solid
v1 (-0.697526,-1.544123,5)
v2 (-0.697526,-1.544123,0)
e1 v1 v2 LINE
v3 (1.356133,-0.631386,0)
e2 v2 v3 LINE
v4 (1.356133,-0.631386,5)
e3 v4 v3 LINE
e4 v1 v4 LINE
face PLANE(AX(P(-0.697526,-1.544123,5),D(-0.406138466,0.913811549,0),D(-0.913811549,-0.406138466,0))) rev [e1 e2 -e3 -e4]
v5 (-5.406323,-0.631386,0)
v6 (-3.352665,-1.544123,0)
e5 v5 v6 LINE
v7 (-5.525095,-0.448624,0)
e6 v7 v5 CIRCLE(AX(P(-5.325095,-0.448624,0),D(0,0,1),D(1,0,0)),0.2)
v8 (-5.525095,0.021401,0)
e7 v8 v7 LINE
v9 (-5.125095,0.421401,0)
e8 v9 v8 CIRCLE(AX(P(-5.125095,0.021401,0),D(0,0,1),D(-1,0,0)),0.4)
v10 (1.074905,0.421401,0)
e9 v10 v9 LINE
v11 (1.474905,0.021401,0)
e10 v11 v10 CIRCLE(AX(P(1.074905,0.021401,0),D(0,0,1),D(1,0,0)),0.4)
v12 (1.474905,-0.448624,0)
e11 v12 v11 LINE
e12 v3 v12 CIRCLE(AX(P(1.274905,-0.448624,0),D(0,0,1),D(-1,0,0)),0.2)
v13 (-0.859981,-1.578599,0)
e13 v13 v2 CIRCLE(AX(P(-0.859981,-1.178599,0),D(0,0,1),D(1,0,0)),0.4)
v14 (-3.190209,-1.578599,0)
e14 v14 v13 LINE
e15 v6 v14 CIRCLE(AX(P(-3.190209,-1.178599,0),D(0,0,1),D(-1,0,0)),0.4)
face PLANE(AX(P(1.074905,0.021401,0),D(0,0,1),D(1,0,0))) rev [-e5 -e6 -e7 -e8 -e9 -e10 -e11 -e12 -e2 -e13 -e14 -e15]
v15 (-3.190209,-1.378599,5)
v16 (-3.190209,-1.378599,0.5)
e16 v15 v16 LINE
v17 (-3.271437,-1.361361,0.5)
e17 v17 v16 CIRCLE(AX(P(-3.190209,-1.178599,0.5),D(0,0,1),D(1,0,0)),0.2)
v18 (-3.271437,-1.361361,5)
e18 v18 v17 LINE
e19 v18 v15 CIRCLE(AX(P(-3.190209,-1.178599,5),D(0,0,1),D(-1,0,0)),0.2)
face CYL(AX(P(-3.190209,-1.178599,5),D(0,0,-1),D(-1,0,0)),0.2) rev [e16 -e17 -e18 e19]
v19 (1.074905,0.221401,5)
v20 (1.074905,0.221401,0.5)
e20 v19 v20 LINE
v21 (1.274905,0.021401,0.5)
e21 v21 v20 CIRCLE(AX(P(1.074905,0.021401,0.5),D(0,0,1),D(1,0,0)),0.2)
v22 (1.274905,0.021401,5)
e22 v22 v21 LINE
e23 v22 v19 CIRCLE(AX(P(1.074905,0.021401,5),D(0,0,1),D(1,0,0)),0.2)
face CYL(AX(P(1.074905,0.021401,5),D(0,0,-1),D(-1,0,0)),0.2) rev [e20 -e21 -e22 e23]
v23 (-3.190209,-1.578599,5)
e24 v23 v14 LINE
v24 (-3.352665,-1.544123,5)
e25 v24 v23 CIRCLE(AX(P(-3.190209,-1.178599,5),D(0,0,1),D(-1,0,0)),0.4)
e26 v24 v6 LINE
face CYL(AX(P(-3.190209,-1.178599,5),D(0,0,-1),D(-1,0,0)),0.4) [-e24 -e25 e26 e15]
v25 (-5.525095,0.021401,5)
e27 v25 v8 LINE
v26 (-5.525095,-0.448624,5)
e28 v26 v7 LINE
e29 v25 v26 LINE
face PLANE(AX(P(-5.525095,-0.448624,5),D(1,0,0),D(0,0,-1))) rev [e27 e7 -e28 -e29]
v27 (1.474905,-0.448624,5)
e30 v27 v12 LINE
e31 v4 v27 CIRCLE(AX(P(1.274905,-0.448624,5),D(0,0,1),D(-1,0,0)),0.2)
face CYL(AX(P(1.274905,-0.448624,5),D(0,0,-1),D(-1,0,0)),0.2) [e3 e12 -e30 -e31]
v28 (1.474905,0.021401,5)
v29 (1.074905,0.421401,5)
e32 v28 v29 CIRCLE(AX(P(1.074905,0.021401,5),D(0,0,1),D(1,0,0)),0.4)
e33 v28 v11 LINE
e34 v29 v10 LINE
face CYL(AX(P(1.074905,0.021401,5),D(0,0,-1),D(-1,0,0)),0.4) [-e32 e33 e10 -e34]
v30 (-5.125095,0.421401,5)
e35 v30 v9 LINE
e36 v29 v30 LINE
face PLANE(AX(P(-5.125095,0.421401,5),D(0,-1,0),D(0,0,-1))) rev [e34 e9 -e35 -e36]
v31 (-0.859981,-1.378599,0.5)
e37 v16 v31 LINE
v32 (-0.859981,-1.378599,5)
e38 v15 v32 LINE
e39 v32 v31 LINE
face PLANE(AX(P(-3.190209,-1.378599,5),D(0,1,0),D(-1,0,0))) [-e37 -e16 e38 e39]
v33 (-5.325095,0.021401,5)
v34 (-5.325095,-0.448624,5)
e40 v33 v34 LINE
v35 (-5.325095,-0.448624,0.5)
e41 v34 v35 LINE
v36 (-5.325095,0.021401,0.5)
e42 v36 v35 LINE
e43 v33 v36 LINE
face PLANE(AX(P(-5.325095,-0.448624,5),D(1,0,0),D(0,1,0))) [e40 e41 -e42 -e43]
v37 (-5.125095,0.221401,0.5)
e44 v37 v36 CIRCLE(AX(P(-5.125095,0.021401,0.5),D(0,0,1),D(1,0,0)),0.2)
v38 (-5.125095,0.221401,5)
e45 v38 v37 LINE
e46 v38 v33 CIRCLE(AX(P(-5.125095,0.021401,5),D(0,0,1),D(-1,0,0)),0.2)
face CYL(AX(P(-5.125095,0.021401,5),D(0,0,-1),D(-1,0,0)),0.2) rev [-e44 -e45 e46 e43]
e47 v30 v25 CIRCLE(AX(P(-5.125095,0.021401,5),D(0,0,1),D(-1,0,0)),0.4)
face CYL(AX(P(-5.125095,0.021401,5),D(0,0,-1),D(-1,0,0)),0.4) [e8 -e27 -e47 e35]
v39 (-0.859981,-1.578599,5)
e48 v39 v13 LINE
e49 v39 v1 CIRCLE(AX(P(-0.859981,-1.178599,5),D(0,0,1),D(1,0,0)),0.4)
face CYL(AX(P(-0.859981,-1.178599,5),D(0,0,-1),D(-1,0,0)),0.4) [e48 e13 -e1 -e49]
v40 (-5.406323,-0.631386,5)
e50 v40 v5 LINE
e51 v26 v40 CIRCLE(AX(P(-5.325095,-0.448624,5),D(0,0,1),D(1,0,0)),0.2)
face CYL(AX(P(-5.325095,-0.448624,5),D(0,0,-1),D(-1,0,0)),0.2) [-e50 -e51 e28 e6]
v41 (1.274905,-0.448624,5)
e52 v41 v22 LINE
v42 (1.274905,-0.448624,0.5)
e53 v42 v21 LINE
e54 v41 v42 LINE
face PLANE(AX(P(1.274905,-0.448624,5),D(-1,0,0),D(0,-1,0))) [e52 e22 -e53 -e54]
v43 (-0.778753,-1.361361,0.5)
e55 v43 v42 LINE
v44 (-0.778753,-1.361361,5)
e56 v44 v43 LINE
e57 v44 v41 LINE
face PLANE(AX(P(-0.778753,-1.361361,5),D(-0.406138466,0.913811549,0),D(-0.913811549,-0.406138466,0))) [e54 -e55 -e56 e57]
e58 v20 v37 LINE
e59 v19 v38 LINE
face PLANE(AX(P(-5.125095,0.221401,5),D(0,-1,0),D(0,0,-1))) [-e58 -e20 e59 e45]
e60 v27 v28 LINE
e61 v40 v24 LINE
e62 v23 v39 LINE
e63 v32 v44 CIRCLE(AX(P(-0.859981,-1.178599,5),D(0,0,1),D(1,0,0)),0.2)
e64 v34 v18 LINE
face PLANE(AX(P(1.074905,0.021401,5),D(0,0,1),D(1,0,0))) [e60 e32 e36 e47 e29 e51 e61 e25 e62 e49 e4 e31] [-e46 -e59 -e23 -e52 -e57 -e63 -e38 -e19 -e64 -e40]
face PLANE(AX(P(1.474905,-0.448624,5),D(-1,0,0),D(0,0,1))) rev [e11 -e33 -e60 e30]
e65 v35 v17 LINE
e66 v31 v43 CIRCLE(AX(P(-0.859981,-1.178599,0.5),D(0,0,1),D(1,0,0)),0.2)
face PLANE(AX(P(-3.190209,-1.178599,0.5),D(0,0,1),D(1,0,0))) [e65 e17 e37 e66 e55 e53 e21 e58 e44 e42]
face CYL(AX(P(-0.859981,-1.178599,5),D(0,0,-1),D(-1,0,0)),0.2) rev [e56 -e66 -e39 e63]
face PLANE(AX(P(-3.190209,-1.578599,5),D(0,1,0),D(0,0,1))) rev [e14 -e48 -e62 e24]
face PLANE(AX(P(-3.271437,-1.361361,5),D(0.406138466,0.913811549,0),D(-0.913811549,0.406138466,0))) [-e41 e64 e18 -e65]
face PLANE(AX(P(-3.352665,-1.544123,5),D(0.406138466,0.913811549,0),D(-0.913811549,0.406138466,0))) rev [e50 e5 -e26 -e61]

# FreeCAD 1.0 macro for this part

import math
import FreeCAD as App
import Part
import Sketcher

doc = App.newDocument("Part")
params = doc.addObject("Spreadsheet::Sheet", "Params")
for row, (alias, value) in enumerate([
    ("sketch1_radius", "0.2 mm"),
    ("sketch1_width", "6.2 mm"),
    ("pad1_length", "5 mm"),
    ("sketch2_radius", "0.2 mm"),
    ("pad2_length", "0.5 mm"),
], start=1):
    params.set(f"A{row}", alias)
    params.set(f"B{row}", "=" + value)
    params.setAlias(f"B{row}", alias)

body = doc.addObject("PartDesign::Body", "Body")

sketch1 = body.newObject("Sketcher::SketchObject", "Sketch")
sketch1.AttachmentSupport = (doc.getObject("XY_Plane"), [""])
sketch1.MapMode = "FlatFace"
sketch1.addGeometry(Part.LineSegment(App.Vector(-5.53, 0.02, 0), App.Vector(-5.53, -0.45, 0)), False)
sketch1.addGeometry(Part.ArcOfCircle(Part.Circle(App.Vector(-5.33, -0.45, 0), App.Vector(0, 0, 1), 0.2), math.radians(180), math.radians(246)), False)
sketch1.addGeometry(Part.LineSegment(App.Vector(-5.41, -0.63, 0), App.Vector(-3.35, -1.54, 0)), False)
sketch1.addGeometry(Part.ArcOfCircle(Part.Circle(App.Vector(-3.19, -1.18, 0), App.Vector(0, 0, 1), 0.4), math.radians(-114), math.radians(-90)), False)
sketch1.addGeometry(Part.LineSegment(App.Vector(-3.19, -1.58, 0), App.Vector(-0.86, -1.58, 0)), False)
sketch1.addGeometry(Part.ArcOfCircle(Part.Circle(App.Vector(-0.86, -1.18, 0), App.Vector(0, 0, 1), 0.4), math.radians(-90), math.radians(-66)), False)
sketch1.addGeometry(Part.LineSegment(App.Vector(-0.7, -1.54, 0), App.Vector(1.36, -0.63, 0)), False)
sketch1.addGeometry(Part.ArcOfCircle(Part.Circle(App.Vector(1.27, -0.45, 0), App.Vector(0, 0, 1), 0.2), math.radians(-66), math.radians(0)), False)
sketch1.addGeometry(Part.LineSegment(App.Vector(1.47, -0.45, 0), App.Vector(1.47, 0.02, 0)), False)
sketch1.addGeometry(Part.ArcOfCircle(Part.Circle(App.Vector(1.07, 0.02, 0), App.Vector(0, 0, 1), 0.4), math.radians(0), math.radians(90)), False)
sketch1.addGeometry(Part.LineSegment(App.Vector(1.07, 0.42, 0), App.Vector(-5.13, 0.42, 0)), False)
sketch1.addGeometry(Part.ArcOfCircle(Part.Circle(App.Vector(-5.13, 0.02, 0), App.Vector(0, 0, 1), 0.4), math.radians(90), math.radians(180)), False)
sketch1.addGeometry(Part.ArcOfCircle(Part.Circle(App.Vector(-0.86, -1.18, 0), App.Vector(0, 0, 1), 0.2), math.radians(-90), math.radians(-66)), False)
sketch1.addGeometry(Part.LineSegment(App.Vector(-0.86, -1.38, 0), App.Vector(-3.19, -1.38, 0)), False)
sketch1.addGeometry(Part.ArcOfCircle(Part.Circle(App.Vector(-3.19, -1.18, 0), App.Vector(0, 0, 1), 0.2), math.radians(-114), math.radians(-90)), False)
sketch1.addGeometry(Part.LineSegment(App.Vector(-3.27, -1.36, 0), App.Vector(-5.33, -0.45, 0)), False)
sketch1.addGeometry(Part.LineSegment(App.Vector(-5.33, -0.45, 0), App.Vector(-5.33, 0.02, 0)), False)
sketch1.addGeometry(Part.ArcOfCircle(Part.Circle(App.Vector(-5.13, 0.02, 0), App.Vector(0, 0, 1), 0.2), math.radians(90), math.radians(180)), False)
sketch1.addGeometry(Part.LineSegment(App.Vector(-5.13, 0.22, 0), App.Vector(1.07, 0.22, 0)), False)
sketch1.addGeometry(Part.ArcOfCircle(Part.Circle(App.Vector(1.07, 0.02, 0), App.Vector(0, 0, 1), 0.2), math.radians(0), math.radians(90)), False)
sketch1.addGeometry(Part.LineSegment(App.Vector(1.27, 0.02, 0), App.Vector(1.27, -0.45, 0)), False)
sketch1.addGeometry(Part.LineSegment(App.Vector(1.27, -0.45, 0), App.Vector(-0.78, -1.36, 0)), False)
sketch1.addConstraint(Sketcher.Constraint("Tangent", 0, 2, 1, 1))
sketch1.addConstraint(Sketcher.Constraint("Tangent", 1, 2, 2, 1))
sketch1.addConstraint(Sketcher.Constraint("Tangent", 2, 2, 3, 1))
sketch1.addConstraint(Sketcher.Constraint("Tangent", 3, 2, 4, 1))
sketch1.addConstraint(Sketcher.Constraint("Tangent", 4, 2, 5, 1))
sketch1.addConstraint(Sketcher.Constraint("Tangent", 5, 2, 6, 1))
sketch1.addConstraint(Sketcher.Constraint("Tangent", 6, 2, 7, 1))
sketch1.addConstraint(Sketcher.Constraint("Tangent", 7, 2, 8, 1))
sketch1.addConstraint(Sketcher.Constraint("Tangent", 8, 2, 9, 1))
sketch1.addConstraint(Sketcher.Constraint("Tangent", 9, 2, 10, 1))
sketch1.addConstraint(Sketcher.Constraint("Tangent", 10, 2, 11, 1))
sketch1.addConstraint(Sketcher.Constraint("Tangent", 11, 2, 0, 1))
sketch1.addConstraint(Sketcher.Constraint("Tangent", 12, 1, 13, 1))
sketch1.addConstraint(Sketcher.Constraint("Tangent", 13, 2, 14, 2))
sketch1.addConstraint(Sketcher.Constraint("Tangent", 14, 1, 15, 1))
sketch1.addConstraint(Sketcher.Constraint("Coincident", 15, 2, 16, 1))
sketch1.addConstraint(Sketcher.Constraint("Tangent", 16, 2, 17, 2))
sketch1.addConstraint(Sketcher.Constraint("Tangent", 17, 1, 18, 1))
sketch1.addConstraint(Sketcher.Constraint("Tangent", 18, 2, 19, 2))
sketch1.addConstraint(Sketcher.Constraint("Tangent", 19, 1, 20, 1))
sketch1.addConstraint(Sketcher.Constraint("Coincident", 20, 2, 21, 1))
sketch1.addConstraint(Sketcher.Constraint("Tangent", 21, 2, 12, 2))
sketch1.addConstraint(Sketcher.Constraint("Vertical", 0))
sketch1.addConstraint(Sketcher.Constraint("Horizontal", 4))
sketch1.addConstraint(Sketcher.Constraint("Vertical", 8))
sketch1.addConstraint(Sketcher.Constraint("Horizontal", 10))
sketch1.addConstraint(Sketcher.Constraint("Horizontal", 13))
sketch1.addConstraint(Sketcher.Constraint("Vertical", 16))
sketch1.addConstraint(Sketcher.Constraint("Horizontal", 18))
sketch1.addConstraint(Sketcher.Constraint("Vertical", 20))
sketch1.addConstraint(Sketcher.Constraint("Coincident", 12, 3, 5, 3))
sketch1.addConstraint(Sketcher.Constraint("Coincident", 14, 3, 3, 3))
sketch1.addConstraint(Sketcher.Constraint("Coincident", 17, 3, 11, 3))
sketch1.addConstraint(Sketcher.Constraint("Coincident", 19, 3, 9, 3))
sketch1.addConstraint(Sketcher.Constraint("Coincident", 15, 2, 1, 3))
sketch1.addConstraint(Sketcher.Constraint("Coincident", 20, 2, 7, 3))
sketch1.addConstraint(Sketcher.Constraint("Equal", 3, 5))
sketch1.addConstraint(Sketcher.Constraint("Equal", 5, 9))
sketch1.addConstraint(Sketcher.Constraint("Equal", 9, 11))
sketch1.addConstraint(Sketcher.Constraint("Equal", 7, 12))
sketch1.addConstraint(Sketcher.Constraint("Equal", 14, 17))
sketch1.addConstraint(Sketcher.Constraint("Horizontal", 1, 3, 7, 3))
sketch1.addConstraint(Sketcher.Constraint("Horizontal", 2, 2, 5, 2))
sketch1.addConstraint(Sketcher.Constraint("Radius", 1, 0.2))
sketch1.addConstraint(Sketcher.Constraint("DistanceX", 10, 2, 10, 1, 6.2))
sketch1.addConstraint(Sketcher.Constraint("DistanceY", 5, 3, 9, 3, 1.2))
sketch1.addConstraint(Sketcher.Constraint("DistanceX", 4, 1, 4, 2, 2.330228))
sketch1.addConstraint(Sketcher.Constraint("DistanceY", 3, 3, -1, 1, 1.178599))
sketch1.addConstraint(Sketcher.Constraint("DistanceY", 2, 2, 1, 3, 1.095499))
sketch1.addConstraint(Sketcher.Constraint("DistanceX", 3, 3, -1, 1, 3.190209))
sketch1.setExpression("Constraints[43]", "Params.sketch1_radius")
sketch1.setExpression("Constraints[44]", "Params.sketch1_width")
pad1 = body.newObject("PartDesign::Pad", "Pad")
pad1.Profile = sketch1
pad1.setExpression("Length", "Params.pad1_length")

sketch2 = body.newObject("Sketcher::SketchObject", "Sketch001")
sketch2.AttachmentSupport = (doc.getObject("XY_Plane"), [""])
sketch2.MapMode = "FlatFace"
sketch2.addGeometry(Part.LineSegment(App.Vector(-3.19, -1.38, 0), App.Vector(-0.86, -1.38, 0)), False)
sketch2.addGeometry(Part.ArcOfCircle(Part.Circle(App.Vector(-0.86, -1.18, 0), App.Vector(0, 0, 1), 0.2), math.radians(-90), math.radians(-66)), False)
sketch2.addGeometry(Part.LineSegment(App.Vector(-0.78, -1.36, 0), App.Vector(1.27, -0.45, 0)), False)
sketch2.addGeometry(Part.LineSegment(App.Vector(1.27, -0.45, 0), App.Vector(1.27, 0.3, 0)), False)
sketch2.addGeometry(Part.LineSegment(App.Vector(1.27, 0.3, 0), App.Vector(-5.41, 0.3, 0)), False)
sketch2.addGeometry(Part.LineSegment(App.Vector(-5.41, 0.3, 0), App.Vector(-5.41, -0.45, 0)), False)
sketch2.addGeometry(Part.LineSegment(App.Vector(-5.41, -0.45, 0), App.Vector(-5.33, -0.45, 0)), False)
sketch2.addGeometry(Part.LineSegment(App.Vector(-5.33, -0.45, 0), App.Vector(-3.27, -1.36, 0)), False)
sketch2.addGeometry(Part.ArcOfCircle(Part.Circle(App.Vector(-3.19, -1.18, 0), App.Vector(0, 0, 1), 0.2), math.radians(-114), math.radians(-90)), False)
sketch2.addConstraint(Sketcher.Constraint("Tangent", 0, 2, 1, 1))
sketch2.addConstraint(Sketcher.Constraint("Tangent", 1, 2, 2, 1))
sketch2.addConstraint(Sketcher.Constraint("Coincident", 2, 2, 3, 1))
sketch2.addConstraint(Sketcher.Constraint("Coincident", 3, 2, 4, 1))
sketch2.addConstraint(Sketcher.Constraint("Coincident", 4, 2, 5, 1))
sketch2.addConstraint(Sketcher.Constraint("Coincident", 5, 2, 6, 1))
sketch2.addConstraint(Sketcher.Constraint("Coincident", 6, 2, 7, 1))
sketch2.addConstraint(Sketcher.Constraint("Tangent", 7, 2, 8, 1))
sketch2.addConstraint(Sketcher.Constraint("Tangent", 8, 2, 0, 1))
sketch2.addConstraint(Sketcher.Constraint("Horizontal", 0))
sketch2.addConstraint(Sketcher.Constraint("Vertical", 3))
sketch2.addConstraint(Sketcher.Constraint("Horizontal", 4))
sketch2.addConstraint(Sketcher.Constraint("Vertical", 5))
sketch2.addConstraint(Sketcher.Constraint("Horizontal", 6))
sketch2.addConstraint(Sketcher.Constraint("Equal", 1, 8))
sketch2.addConstraint(Sketcher.Constraint("Horizontal", 2, 2, 5, 2))
sketch2.addConstraint(Sketcher.Constraint("Horizontal", 1, 2, 7, 2))
sketch2.addConstraint(Sketcher.Constraint("Radius", 1, 0.2))
sketch2.addConstraint(Sketcher.Constraint("DistanceX", 0, 1, 0, 2, 2.330228))
sketch2.addConstraint(Sketcher.Constraint("DistanceY", 3, 1, 3, 2, 0.752868))
sketch2.addConstraint(Sketcher.Constraint("DistanceY", 1, 3, -1, 1, 1.178599))
sketch2.addConstraint(Sketcher.Constraint("DistanceX", 5, 2, 7, 2, 2.136501))
sketch2.addConstraint(Sketcher.Constraint("DistanceX", 4, 2, 4, 1, 6.682843))
sketch2.addConstraint(Sketcher.Constraint("DistanceX", 6, 1, 6, 2, 0.082843))
sketch2.addConstraint(Sketcher.Constraint("DistanceX", 1, 3, -1, 1, 0.859981))
sketch2.setExpression("Constraints[17]", "Params.sketch2_radius")
pad2 = body.newObject("PartDesign::Pad", "Pad001")
pad2.Profile = sketch2
pad2.setExpression("Length", "Params.pad2_length")

doc.recompute()
